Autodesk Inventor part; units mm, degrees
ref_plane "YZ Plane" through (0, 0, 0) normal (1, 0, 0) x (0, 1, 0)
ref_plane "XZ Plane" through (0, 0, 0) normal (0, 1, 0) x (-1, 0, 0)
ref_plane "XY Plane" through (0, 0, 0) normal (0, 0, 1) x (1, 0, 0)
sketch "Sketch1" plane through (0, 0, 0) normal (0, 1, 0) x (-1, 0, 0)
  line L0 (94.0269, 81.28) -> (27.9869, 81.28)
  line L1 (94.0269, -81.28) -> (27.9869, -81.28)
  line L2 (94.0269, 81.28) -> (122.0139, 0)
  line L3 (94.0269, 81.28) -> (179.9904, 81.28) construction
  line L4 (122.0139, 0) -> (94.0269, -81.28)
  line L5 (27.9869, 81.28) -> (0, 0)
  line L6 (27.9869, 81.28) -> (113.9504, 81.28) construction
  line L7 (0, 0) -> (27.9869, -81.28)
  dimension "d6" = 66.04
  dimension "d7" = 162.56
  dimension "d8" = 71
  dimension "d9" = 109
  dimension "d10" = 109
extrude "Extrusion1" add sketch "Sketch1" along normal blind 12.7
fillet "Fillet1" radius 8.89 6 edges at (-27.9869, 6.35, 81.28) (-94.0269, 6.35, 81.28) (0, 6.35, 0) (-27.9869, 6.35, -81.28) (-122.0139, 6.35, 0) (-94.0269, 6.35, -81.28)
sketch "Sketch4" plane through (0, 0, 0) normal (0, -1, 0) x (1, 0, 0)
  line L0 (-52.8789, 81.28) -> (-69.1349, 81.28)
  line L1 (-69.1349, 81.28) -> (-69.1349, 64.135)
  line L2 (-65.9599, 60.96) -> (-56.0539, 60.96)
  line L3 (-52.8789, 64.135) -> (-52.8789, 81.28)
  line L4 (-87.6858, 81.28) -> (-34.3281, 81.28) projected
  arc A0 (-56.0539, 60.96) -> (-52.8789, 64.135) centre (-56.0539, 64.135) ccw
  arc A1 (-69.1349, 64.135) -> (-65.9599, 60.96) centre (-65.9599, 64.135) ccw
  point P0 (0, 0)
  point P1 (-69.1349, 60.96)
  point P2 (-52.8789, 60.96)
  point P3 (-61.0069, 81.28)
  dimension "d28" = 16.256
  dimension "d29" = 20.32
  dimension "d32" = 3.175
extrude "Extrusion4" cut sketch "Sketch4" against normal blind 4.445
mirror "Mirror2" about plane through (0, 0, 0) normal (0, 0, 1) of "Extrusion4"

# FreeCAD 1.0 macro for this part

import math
import FreeCAD as App
import Part
import Sketcher
Q = App.Units.Quantity


def edges_at(feature, points):
    """Names of the edges that pass closest to the given points."""
    edges = feature.Shape.Edges
    near = lambda p: min(range(len(edges)), key=lambda i: edges[i].distToShape(Part.Vertex(*p))[0])
    return sorted({f"Edge{near(p) + 1}" for p in points})


def add_polygon(sketch, points):
    """Adds a closed chain of lines whose ends are joined by coincident constraints."""
    first, n = sketch.GeometryCount, len(points)
    for a, b in zip(points, points[1:] + points[:1]):
        sketch.addGeometry(Part.LineSegment(App.Vector(*a, 0), App.Vector(*b, 0)), False)
    for i in range(n):
        sketch.addConstraint(Sketcher.Constraint("Coincident", first + i, 2, first + (i + 1) % n, 1))

doc = App.newDocument("Part")
body = doc.addObject("PartDesign::Body", "Body")

sketch1 = body.newObject("Sketcher::SketchObject", "Sketch")
sketch1.AttachmentSupport = (doc.getObject("XZ_Plane"), [""])
sketch1.MapMode = "FlatFace"
add_polygon(sketch1, [(-122, 0), (-94, 81), (-28, 81), (0, 0), (-28, -81), (-94, -81)])
sketch1.addConstraint(Sketcher.Constraint("Horizontal", 1))
sketch1.addConstraint(Sketcher.Constraint("Horizontal", 4))
sketch1.addConstraint(Sketcher.Constraint("Coincident", 2, 2, -1, 1))
sketch1.addConstraint(Sketcher.Constraint("Symmetric", 1, 2, 3, 2, -1))
sketch1.addConstraint(Sketcher.Constraint("PointOnObject", 5, 2, -1))
sketch1.addConstraint(Sketcher.Constraint("Parallel", 0, 3))
sketch1.addConstraint(Sketcher.Constraint("Parallel", 2, 5))
sketch1.addConstraint(Sketcher.Constraint("DistanceX", 1, 1, 1, 2, Q("2.6 in")))
sketch1.addConstraint(Sketcher.Constraint("Angle", 0, Q("71 deg")))
sketch1.addConstraint(Sketcher.Constraint("DistanceY", 3, 2, 1, 2, Q("6.4 in")))
pad1 = body.newObject("PartDesign::Pad", "Pad")
pad1.Profile = sketch1
pad1.Length = Q("0.5 in")
pad1.Reversed = True
doc.recompute()

fillet = body.newObject("PartDesign::Fillet", "Fillet")
fillet.Base = (pad1, edges_at(pad1, [
    (-27.987, 6.35, 81.28),
    (-94.027, 6.35, 81.28),
    (0, 6.35, 0),
    (-27.987, 6.35, -81.28),
    (-122.014, 6.35, 0),
    (-94.027, 6.35, -81.28),
]))
fillet.Radius = Q("0.35 in")

sketch2 = body.newObject("Sketcher::SketchObject", "Sketch001")
sketch2.AttachmentSupport = (doc.getObject("XZ_Plane"), [""])
sketch2.MapMode = "FlatFace"
sketch2.addGeometry(Part.LineSegment(App.Vector(-52.9, 64.1, 0), App.Vector(-52.9, 81.3, 0)), False)
sketch2.addGeometry(Part.LineSegment(App.Vector(-52.9, 81.3, 0), App.Vector(-69.1, 81.3, 0)), False)
sketch2.addGeometry(Part.LineSegment(App.Vector(-69.1, 81.3, 0), App.Vector(-69.1, 64.1, 0)), False)
sketch2.addGeometry(Part.ArcOfCircle(Part.Circle(App.Vector(-66, 64.1, 0), App.Vector(0, 0, 1), 3.2), math.radians(180), math.radians(270)), False)
sketch2.addGeometry(Part.LineSegment(App.Vector(-66, 61, 0), App.Vector(-56.1, 61, 0)), False)
sketch2.addGeometry(Part.ArcOfCircle(Part.Circle(App.Vector(-56.1, 64.1, 0), App.Vector(0, 0, 1), 3.2), math.radians(-90), math.radians(0)), False)
sketch2.addConstraint(Sketcher.Constraint("Coincident", 0, 2, 1, 1))
sketch2.addConstraint(Sketcher.Constraint("Coincident", 1, 2, 2, 1))
sketch2.addConstraint(Sketcher.Constraint("Tangent", 2, 2, 3, 1))
sketch2.addConstraint(Sketcher.Constraint("Tangent", 3, 2, 4, 1))
sketch2.addConstraint(Sketcher.Constraint("Tangent", 4, 2, 5, 1))
sketch2.addConstraint(Sketcher.Constraint("Tangent", 5, 2, 0, 1))
sketch2.addConstraint(Sketcher.Constraint("Vertical", 0))
sketch2.addConstraint(Sketcher.Constraint("Horizontal", 1))
sketch2.addConstraint(Sketcher.Constraint("Vertical", 2))
sketch2.addConstraint(Sketcher.Constraint("Horizontal", 4))
sketch2.addConstraint(Sketcher.Constraint("Equal", 3, 5))
sketch2.addConstraint(Sketcher.Constraint("Radius", 3, Q("0.125 in")))
sketch2.addConstraint(Sketcher.Constraint("DistanceX", 1, 2, 1, 1, Q("0.64 in")))
sketch2.addConstraint(Sketcher.Constraint("DistanceY", 3, 2, 1, 2, Q("0.8 in")))
sketch2.addConstraint(Sketcher.Constraint("DistanceY", -1, 1, 0, 2, Q("3.2 in")))
sketch2.addConstraint(Sketcher.Constraint("DistanceX", 3, 3, -1, 1, 65.96))
pocket1 = body.newObject("PartDesign::Pocket", "Pocket")
pocket1.Profile = sketch2
pocket1.Length = Q("0.175 in")
doc.recompute()

mirrored = body.newObject("PartDesign::Mirrored", "Mirrored")
mirrored.Originals = [pocket1]
mirrored.MirrorPlane = (doc.getObject("XY_Plane"), [""])
body.Tip = mirrored

doc.recompute()
